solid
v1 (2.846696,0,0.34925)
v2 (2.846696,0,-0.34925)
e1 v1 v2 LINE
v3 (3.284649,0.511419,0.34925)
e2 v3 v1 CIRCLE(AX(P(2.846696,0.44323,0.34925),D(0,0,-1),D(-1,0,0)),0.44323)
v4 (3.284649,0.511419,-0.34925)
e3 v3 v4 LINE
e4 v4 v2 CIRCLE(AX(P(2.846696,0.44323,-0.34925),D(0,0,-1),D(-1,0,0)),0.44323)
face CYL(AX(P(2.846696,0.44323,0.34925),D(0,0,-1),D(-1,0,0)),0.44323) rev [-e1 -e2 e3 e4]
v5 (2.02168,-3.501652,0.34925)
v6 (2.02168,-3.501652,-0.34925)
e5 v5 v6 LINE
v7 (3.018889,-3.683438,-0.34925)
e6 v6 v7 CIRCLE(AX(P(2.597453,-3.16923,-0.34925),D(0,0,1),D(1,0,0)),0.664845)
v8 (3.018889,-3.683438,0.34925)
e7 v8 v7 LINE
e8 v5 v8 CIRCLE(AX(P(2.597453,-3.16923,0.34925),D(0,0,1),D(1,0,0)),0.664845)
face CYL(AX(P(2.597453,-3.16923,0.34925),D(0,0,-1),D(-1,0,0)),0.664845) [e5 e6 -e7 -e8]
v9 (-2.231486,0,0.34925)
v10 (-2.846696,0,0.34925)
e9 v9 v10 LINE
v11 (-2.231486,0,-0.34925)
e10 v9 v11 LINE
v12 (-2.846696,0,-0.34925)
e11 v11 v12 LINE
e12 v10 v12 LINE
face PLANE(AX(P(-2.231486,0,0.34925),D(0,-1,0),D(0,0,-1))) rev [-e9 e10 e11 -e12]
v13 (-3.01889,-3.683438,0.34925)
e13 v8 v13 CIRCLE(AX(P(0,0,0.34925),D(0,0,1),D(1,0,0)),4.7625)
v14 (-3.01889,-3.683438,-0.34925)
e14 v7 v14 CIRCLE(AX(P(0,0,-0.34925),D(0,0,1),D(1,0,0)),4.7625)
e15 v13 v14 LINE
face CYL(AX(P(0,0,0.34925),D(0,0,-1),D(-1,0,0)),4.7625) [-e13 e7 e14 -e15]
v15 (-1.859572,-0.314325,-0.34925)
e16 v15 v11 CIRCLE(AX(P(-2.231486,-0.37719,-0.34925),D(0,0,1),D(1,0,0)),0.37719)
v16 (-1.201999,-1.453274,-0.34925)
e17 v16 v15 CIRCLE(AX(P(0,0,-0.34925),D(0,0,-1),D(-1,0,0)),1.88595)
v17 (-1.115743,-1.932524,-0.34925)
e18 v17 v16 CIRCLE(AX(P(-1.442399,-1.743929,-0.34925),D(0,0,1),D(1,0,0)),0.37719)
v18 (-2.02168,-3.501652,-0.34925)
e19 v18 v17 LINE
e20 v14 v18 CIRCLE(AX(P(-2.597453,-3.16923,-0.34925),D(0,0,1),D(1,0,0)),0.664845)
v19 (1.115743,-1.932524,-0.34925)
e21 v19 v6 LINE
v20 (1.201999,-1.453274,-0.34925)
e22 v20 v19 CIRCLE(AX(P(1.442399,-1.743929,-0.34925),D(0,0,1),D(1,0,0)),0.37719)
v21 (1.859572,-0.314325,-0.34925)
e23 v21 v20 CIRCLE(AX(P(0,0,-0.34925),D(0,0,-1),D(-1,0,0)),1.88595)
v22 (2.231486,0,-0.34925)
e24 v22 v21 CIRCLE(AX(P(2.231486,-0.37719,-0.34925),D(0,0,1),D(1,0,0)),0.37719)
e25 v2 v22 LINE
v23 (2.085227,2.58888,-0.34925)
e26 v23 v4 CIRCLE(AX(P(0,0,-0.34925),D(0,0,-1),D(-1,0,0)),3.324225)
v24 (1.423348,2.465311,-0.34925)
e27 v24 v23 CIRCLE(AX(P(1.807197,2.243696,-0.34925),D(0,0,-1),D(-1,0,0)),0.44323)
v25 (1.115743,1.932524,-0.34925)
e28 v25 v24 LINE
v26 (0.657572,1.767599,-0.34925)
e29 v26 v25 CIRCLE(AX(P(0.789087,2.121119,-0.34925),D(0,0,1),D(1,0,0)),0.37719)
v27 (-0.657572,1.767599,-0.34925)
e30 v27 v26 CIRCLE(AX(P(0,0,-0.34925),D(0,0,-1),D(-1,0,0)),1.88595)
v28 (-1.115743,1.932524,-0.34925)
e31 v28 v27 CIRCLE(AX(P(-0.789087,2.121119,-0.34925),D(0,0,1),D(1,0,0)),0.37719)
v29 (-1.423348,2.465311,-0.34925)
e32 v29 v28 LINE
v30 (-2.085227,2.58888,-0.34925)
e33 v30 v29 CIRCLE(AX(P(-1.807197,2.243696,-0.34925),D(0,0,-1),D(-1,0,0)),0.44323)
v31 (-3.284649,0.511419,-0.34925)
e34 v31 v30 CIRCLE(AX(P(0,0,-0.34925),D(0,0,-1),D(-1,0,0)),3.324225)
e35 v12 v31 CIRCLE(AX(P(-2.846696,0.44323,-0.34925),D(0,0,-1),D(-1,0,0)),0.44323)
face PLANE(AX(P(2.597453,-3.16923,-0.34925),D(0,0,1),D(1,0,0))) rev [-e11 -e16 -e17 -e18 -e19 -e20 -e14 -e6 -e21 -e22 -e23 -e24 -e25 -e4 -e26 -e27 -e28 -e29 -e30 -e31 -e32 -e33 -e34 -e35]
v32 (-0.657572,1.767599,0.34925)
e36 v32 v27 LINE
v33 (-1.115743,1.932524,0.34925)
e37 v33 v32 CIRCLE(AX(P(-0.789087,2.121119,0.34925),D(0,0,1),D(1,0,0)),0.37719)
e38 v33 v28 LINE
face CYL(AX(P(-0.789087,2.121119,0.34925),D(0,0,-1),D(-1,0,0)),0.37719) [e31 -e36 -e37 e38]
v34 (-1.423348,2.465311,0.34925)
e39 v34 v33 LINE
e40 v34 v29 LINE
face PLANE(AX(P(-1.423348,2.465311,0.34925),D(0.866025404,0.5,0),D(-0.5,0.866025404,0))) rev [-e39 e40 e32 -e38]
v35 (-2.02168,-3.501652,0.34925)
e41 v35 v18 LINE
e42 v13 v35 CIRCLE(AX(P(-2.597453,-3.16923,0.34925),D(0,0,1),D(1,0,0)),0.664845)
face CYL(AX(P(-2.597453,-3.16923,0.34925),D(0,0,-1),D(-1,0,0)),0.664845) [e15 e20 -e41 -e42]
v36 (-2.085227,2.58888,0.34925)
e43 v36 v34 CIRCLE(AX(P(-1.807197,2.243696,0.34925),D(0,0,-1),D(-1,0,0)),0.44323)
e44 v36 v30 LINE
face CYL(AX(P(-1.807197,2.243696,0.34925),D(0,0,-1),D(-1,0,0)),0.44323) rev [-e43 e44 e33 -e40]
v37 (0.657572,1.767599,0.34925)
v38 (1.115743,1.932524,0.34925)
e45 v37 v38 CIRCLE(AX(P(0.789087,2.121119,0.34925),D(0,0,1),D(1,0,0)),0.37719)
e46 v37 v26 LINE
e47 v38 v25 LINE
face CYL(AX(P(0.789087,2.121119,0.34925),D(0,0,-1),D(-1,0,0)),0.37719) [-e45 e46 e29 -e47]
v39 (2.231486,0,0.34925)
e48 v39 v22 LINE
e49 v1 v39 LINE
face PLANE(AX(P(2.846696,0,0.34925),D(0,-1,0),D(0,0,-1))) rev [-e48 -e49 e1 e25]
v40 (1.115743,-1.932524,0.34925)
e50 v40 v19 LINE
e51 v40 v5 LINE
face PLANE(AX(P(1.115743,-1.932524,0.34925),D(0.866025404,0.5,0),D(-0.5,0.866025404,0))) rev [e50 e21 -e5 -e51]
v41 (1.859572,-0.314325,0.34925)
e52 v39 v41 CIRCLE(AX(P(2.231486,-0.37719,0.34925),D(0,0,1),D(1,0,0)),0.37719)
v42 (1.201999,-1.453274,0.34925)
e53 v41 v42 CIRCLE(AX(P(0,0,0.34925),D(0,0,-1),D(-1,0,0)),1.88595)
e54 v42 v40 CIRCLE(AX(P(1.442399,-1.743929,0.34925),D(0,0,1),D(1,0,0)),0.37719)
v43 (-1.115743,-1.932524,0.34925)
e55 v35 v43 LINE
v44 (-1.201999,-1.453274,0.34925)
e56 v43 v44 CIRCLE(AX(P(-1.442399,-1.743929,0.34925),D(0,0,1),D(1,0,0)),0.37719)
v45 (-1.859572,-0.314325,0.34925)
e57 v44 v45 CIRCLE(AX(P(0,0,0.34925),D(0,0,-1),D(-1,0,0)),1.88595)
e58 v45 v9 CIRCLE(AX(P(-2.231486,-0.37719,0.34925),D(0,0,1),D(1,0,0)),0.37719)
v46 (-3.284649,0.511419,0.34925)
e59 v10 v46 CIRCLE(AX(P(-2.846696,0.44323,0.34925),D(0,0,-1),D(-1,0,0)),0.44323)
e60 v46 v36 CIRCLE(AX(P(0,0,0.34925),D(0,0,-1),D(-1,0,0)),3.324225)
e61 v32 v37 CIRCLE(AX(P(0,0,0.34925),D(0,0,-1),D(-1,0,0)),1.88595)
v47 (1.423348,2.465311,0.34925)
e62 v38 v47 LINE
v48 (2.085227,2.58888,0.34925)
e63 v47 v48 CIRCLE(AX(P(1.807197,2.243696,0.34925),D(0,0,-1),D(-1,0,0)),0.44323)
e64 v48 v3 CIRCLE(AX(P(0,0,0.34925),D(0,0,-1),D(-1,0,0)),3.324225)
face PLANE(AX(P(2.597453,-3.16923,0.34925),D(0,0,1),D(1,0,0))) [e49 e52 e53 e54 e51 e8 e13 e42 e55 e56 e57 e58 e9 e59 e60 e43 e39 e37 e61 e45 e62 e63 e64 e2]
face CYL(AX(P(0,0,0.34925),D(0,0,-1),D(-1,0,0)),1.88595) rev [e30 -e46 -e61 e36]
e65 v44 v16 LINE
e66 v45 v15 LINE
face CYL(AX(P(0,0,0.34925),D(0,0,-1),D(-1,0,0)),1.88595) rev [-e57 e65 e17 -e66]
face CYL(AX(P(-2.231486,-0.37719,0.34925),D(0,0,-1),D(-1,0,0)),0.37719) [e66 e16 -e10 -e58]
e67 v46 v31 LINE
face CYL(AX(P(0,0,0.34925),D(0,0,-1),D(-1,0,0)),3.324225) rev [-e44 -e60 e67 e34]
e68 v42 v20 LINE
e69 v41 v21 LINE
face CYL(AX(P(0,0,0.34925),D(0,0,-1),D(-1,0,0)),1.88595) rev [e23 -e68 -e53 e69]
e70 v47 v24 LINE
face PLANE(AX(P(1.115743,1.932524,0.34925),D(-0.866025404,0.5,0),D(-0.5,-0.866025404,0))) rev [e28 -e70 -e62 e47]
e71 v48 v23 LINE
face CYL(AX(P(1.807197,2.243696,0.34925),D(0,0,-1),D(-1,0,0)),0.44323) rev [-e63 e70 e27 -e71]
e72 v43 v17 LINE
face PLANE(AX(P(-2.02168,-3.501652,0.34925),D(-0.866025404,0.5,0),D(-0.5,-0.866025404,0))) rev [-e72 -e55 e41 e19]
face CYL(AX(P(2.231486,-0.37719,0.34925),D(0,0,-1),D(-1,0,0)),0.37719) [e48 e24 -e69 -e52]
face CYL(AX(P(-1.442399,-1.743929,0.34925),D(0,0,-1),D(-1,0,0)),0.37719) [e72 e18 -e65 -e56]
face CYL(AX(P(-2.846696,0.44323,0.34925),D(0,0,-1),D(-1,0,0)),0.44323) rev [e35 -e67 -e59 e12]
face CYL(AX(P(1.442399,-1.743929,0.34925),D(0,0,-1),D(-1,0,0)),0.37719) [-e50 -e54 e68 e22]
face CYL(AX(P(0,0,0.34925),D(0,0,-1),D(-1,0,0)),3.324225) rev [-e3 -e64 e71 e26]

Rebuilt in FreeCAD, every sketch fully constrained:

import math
import FreeCAD as App
import Part
import Sketcher
from FreeCAD import Vector
Q = App.Units.Quantity

doc = App.newDocument("Part")
body = doc.addObject("PartDesign::Body", "Body")

sketch1 = doc.addObject("Sketcher::SketchObject", "Sketch")
body.addObject(sketch1)
sketch1.AttachmentSupport = (doc.XY_Plane, [""])
sketch1.MapMode = "FlatFace"
sketch1.addGeometry(Part.LineSegment(Vector(-2.02, -3.5, 0), Vector(-1.12, -1.93, 0)), False)
sketch1.addGeometry(Part.ArcOfCircle(Part.Circle(Vector(-1.44, -1.74, 0), Vector(0, 0, 1), 0.38), math.radians(-30), math.radians(50)), False)
sketch1.addGeometry(Part.ArcOfCircle(Part.Circle(Vector(0, 0, 0), Vector(0, 0, 1), 1.89), math.radians(-170), math.radians(-130)), False)
sketch1.addGeometry(Part.ArcOfCircle(Part.Circle(Vector(-2.23, -0.38, 0), Vector(0, 0, 1), 0.38), math.radians(10), math.radians(90)), False)
sketch1.addGeometry(Part.LineSegment(Vector(-2.23, 0, 0), Vector(-2.85, 0, 0)), False)
sketch1.addGeometry(Part.ArcOfCircle(Part.Circle(Vector(-2.85, 0.44, 0), Vector(0, 0, 1), 0.44), math.radians(171), math.radians(270)), False)
sketch1.addGeometry(Part.ArcOfCircle(Part.Circle(Vector(0, 0, 0), Vector(0, 0, 1), 3.32), math.radians(129), math.radians(171)), False)
sketch1.addGeometry(Part.ArcOfCircle(Part.Circle(Vector(-1.81, 2.24, 0), Vector(0, 0, 1), 0.44), math.radians(30), math.radians(129)), False)
sketch1.addGeometry(Part.LineSegment(Vector(-1.42, 2.47, 0), Vector(-1.12, 1.93, 0)), False)
sketch1.addGeometry(Part.ArcOfCircle(Part.Circle(Vector(-0.79, 2.12, 0), Vector(0, 0, 1), 0.38), math.radians(-150), math.radians(-70)), False)
sketch1.addGeometry(Part.ArcOfCircle(Part.Circle(Vector(0, 0, 0), Vector(0, 0, 1), 1.89), math.radians(70), math.radians(110)), False)
sketch1.addGeometry(Part.ArcOfCircle(Part.Circle(Vector(0.79, 2.12, 0), Vector(0, 0, 1), 0.38), math.radians(-110), math.radians(-30)), False)
sketch1.addGeometry(Part.LineSegment(Vector(1.12, 1.93, 0), Vector(1.42, 2.47, 0)), False)
sketch1.addGeometry(Part.ArcOfCircle(Part.Circle(Vector(1.81, 2.24, 0), Vector(0, 0, 1), 0.44), math.radians(51), math.radians(150)), False)
sketch1.addGeometry(Part.ArcOfCircle(Part.Circle(Vector(0, 0, 0), Vector(0, 0, 1), 3.32), math.radians(9), math.radians(51)), False)
sketch1.addGeometry(Part.ArcOfCircle(Part.Circle(Vector(2.85, 0.44, 0), Vector(0, 0, 1), 0.44), math.radians(-90), math.radians(9)), False)
sketch1.addGeometry(Part.LineSegment(Vector(2.85, 0, 0), Vector(2.23, 0, 0)), False)
sketch1.addGeometry(Part.ArcOfCircle(Part.Circle(Vector(2.23, -0.38, 0), Vector(0, 0, 1), 0.38), math.radians(90), math.radians(170)), False)
sketch1.addGeometry(Part.ArcOfCircle(Part.Circle(Vector(0, 0, 0), Vector(0, 0, 1), 1.89), math.radians(-50), math.radians(-10)), False)
sketch1.addGeometry(Part.ArcOfCircle(Part.Circle(Vector(1.44, -1.74, 0), Vector(0, 0, 1), 0.38), math.radians(130), math.radians(210)), False)
sketch1.addGeometry(Part.LineSegment(Vector(1.12, -1.93, 0), Vector(2.02, -3.5, 0)), False)
sketch1.addGeometry(Part.ArcOfCircle(Part.Circle(Vector(2.6, -3.17, 0), Vector(0, 0, 1), 0.66), math.radians(-150), math.radians(-51)), False)
sketch1.addGeometry(Part.ArcOfCircle(Part.Circle(Vector(0, 0, 0), Vector(0, 0, 1), 4.76), math.radians(-51), math.radians(231)), False)
sketch1.addGeometry(Part.ArcOfCircle(Part.Circle(Vector(-2.6, -3.17, 0), Vector(0, 0, 1), 0.66), math.radians(-129), math.radians(-30)), False)
sketch1.addConstraint(Sketcher.Constraint("Tangent", 0, 2, 1, 1))
sketch1.addConstraint(Sketcher.Constraint("Tangent", 1, 2, 2, 2))
sketch1.addConstraint(Sketcher.Constraint("Tangent", 2, 1, 3, 1))
sketch1.addConstraint(Sketcher.Constraint("Tangent", 3, 2, 4, 1))
sketch1.addConstraint(Sketcher.Constraint("Tangent", 4, 2, 5, 2))
sketch1.addConstraint(Sketcher.Constraint("Tangent", 5, 1, 6, 2))
sketch1.addConstraint(Sketcher.Constraint("Tangent", 6, 1, 7, 2))
sketch1.addConstraint(Sketcher.Constraint("Tangent", 7, 1, 8, 1))
sketch1.addConstraint(Sketcher.Constraint("Tangent", 8, 2, 9, 1))
sketch1.addConstraint(Sketcher.Constraint("Tangent", 9, 2, 10, 2))
sketch1.addConstraint(Sketcher.Constraint("Tangent", 10, 1, 11, 1))
sketch1.addConstraint(Sketcher.Constraint("Tangent", 11, 2, 12, 1))
sketch1.addConstraint(Sketcher.Constraint("Tangent", 12, 2, 13, 2))
sketch1.addConstraint(Sketcher.Constraint("Tangent", 13, 1, 14, 2))
sketch1.addConstraint(Sketcher.Constraint("Tangent", 14, 1, 15, 2))
sketch1.addConstraint(Sketcher.Constraint("Tangent", 15, 1, 16, 1))
sketch1.addConstraint(Sketcher.Constraint("Tangent", 16, 2, 17, 1))
sketch1.addConstraint(Sketcher.Constraint("Tangent", 17, 2, 18, 2))
sketch1.addConstraint(Sketcher.Constraint("Tangent", 18, 1, 19, 1))
sketch1.addConstraint(Sketcher.Constraint("Tangent", 19, 2, 20, 1))
sketch1.addConstraint(Sketcher.Constraint("Tangent", 20, 2, 21, 1))
sketch1.addConstraint(Sketcher.Constraint("Tangent", 21, 2, 22, 1))
sketch1.addConstraint(Sketcher.Constraint("Tangent", 22, 2, 23, 1))
sketch1.addConstraint(Sketcher.Constraint("Tangent", 23, 2, 0, 1))
sketch1.addConstraint(Sketcher.Constraint("Horizontal", 4))
sketch1.addConstraint(Sketcher.Constraint("Horizontal", 16))
sketch1.addConstraint(Sketcher.Constraint("Coincident", 2, 3, -1, 1))
sketch1.addConstraint(Sketcher.Constraint("Coincident", 6, 3, -1, 1))
sketch1.addConstraint(Sketcher.Constraint("Coincident", 10, 3, -1, 1))
sketch1.addConstraint(Sketcher.Constraint("Coincident", 14, 3, -1, 1))
sketch1.addConstraint(Sketcher.Constraint("Coincident", 18, 3, -1, 1))
sketch1.addConstraint(Sketcher.Constraint("Coincident", 22, 3, -1, 1))
sketch1.addConstraint(Sketcher.Constraint("Equal", 1, 3))
sketch1.addConstraint(Sketcher.Constraint("Equal", 5, 7))
sketch1.addConstraint(Sketcher.Constraint("Equal", 3, 9))
sketch1.addConstraint(Sketcher.Constraint("Equal", 2, 10))
sketch1.addConstraint(Sketcher.Constraint("Equal", 9, 11))
sketch1.addConstraint(Sketcher.Constraint("Equal", 7, 13))
sketch1.addConstraint(Sketcher.Constraint("Equal", 6, 14))
sketch1.addConstraint(Sketcher.Constraint("Equal", 13, 15))
sketch1.addConstraint(Sketcher.Constraint("Equal", 11, 17))
sketch1.addConstraint(Sketcher.Constraint("Equal", 10, 18))
sketch1.addConstraint(Sketcher.Constraint("Equal", 17, 19))
sketch1.addConstraint(Sketcher.Constraint("Equal", 21, 23))
sketch1.addConstraint(Sketcher.Constraint("Symmetric", 0, 2, 11, 2, -1, 1))
sketch1.addConstraint(Sketcher.Constraint("Symmetric", 4, 2, 15, 1, -1, 1))
sketch1.addConstraint(Sketcher.Constraint("Symmetric", 8, 2, 19, 2, -1, 1))
sketch1.addConstraint(Sketcher.Constraint("Symmetric", 8, 2, 11, 2, -2))
sketch1.addConstraint(Sketcher.Constraint("Parallel", 0, 12))
sketch1.addConstraint(Sketcher.Constraint("Angle", 0, Q("60 deg")))
sketch1.addConstraint(Sketcher.Constraint("Radius", 22, Q("0.1875 in")))
sketch1.addConstraint(Sketcher.Constraint("Radius", 1, Q("0.37719 mm")))
sketch1.addConstraint(Sketcher.Constraint("Radius", 2, Q("1.88595 mm")))
sketch1.addConstraint(Sketcher.Constraint("Radius", 5, Q("0.44323 mm")))
sketch1.addConstraint(Sketcher.Constraint("DistanceX", 22, 2, 3, 3, Q("0.0310001 in")))
sketch1.addConstraint(Sketcher.Constraint("Radius", 6, Q("3.324225 mm")))
pad1 = doc.addObject("PartDesign::Pad", "Pad")
body.addObject(pad1)
pad1.Profile = sketch1
pad1.Type = "TwoLengths"
pad1.Length = 0.34925
pad1.Length2 = 0.34925

doc.recompute()
